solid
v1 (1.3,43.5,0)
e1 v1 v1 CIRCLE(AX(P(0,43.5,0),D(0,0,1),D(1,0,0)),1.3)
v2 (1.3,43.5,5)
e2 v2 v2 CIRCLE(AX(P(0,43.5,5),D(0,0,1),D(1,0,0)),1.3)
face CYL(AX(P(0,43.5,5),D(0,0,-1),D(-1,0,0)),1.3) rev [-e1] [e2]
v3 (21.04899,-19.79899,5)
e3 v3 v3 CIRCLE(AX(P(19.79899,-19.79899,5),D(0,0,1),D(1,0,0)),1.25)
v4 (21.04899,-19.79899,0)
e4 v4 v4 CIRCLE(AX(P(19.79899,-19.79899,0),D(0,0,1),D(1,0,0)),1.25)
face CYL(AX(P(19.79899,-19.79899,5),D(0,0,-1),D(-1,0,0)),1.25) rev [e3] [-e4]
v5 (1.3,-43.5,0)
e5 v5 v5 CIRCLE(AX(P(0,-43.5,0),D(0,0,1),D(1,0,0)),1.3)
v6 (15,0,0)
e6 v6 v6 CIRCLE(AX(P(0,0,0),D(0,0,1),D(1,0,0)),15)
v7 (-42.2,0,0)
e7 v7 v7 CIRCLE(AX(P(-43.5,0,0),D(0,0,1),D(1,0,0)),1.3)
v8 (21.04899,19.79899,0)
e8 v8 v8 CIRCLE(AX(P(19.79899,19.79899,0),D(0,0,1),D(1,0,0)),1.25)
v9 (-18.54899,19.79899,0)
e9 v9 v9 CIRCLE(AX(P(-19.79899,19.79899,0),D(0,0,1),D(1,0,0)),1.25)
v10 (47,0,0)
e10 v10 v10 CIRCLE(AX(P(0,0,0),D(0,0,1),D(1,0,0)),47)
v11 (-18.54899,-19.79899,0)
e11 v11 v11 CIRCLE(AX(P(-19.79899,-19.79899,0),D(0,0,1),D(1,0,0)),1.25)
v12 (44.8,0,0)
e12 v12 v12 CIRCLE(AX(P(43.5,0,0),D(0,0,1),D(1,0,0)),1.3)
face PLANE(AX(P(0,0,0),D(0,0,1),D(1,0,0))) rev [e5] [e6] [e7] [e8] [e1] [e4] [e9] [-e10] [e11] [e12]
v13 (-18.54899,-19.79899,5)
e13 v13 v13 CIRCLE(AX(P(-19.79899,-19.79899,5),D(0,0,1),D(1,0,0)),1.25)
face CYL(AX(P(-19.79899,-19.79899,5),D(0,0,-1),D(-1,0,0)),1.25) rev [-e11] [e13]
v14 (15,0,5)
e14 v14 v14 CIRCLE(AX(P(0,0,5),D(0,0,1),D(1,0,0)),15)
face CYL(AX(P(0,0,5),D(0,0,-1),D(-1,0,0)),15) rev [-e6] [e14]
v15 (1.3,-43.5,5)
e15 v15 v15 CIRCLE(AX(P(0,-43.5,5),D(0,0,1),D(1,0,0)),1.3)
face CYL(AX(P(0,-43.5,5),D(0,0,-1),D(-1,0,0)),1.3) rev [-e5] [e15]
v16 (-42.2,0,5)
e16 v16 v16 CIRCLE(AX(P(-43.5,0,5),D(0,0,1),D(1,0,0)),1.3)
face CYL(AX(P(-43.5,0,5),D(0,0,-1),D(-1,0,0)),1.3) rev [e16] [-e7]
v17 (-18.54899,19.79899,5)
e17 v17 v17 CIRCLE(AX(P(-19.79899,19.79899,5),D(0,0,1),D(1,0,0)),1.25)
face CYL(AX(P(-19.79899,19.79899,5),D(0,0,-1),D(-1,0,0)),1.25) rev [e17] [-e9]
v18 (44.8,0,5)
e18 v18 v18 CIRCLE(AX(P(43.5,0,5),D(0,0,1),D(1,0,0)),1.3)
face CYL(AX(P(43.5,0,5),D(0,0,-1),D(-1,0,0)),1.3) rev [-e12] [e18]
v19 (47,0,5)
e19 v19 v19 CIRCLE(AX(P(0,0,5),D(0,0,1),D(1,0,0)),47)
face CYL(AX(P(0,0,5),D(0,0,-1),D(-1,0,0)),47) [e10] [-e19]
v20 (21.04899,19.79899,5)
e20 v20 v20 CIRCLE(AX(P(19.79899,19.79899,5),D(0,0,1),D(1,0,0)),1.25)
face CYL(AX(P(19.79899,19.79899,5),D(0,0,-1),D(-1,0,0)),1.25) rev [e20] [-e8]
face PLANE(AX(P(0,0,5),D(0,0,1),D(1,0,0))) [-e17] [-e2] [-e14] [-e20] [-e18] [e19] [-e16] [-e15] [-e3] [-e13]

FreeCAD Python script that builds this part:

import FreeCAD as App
import Part
import Sketcher
from FreeCAD import Vector
Q = App.Units.Quantity

doc = App.newDocument("Part")
body = doc.addObject("PartDesign::Body", "Body")

sketch1 = body.newObject("Sketcher::SketchObject", "Sketch")
sketch1.AttachmentSupport = (doc.getObject("XY_Plane"), [""])
sketch1.MapMode = "FlatFace"
sketch1.addGeometry([
    Part.Circle(Vector(0, 0, 0), Vector(0, 0, 1), 47),
    Part.Circle(Vector(-19.8, -19.8, 0), Vector(0, 0, 1), 1.2),
    Part.Circle(Vector(0, -43.5, 0), Vector(0, 0, 1), 1.3),
    Part.Circle(Vector(19.8, -19.8, 0), Vector(0, 0, 1), 1.2),
    Part.Circle(Vector(-43.5, 0, 0), Vector(0, 0, 1), 1.3),
    Part.Circle(Vector(-19.8, 19.8, 0), Vector(0, 0, 1), 1.2),
    Part.Circle(Vector(0, 0, 0), Vector(0, 0, 1), 15),
    Part.Circle(Vector(19.8, 19.8, 0), Vector(0, 0, 1), 1.2),
    Part.Circle(Vector(43.5, 0, 0), Vector(0, 0, 1), 1.3),
    Part.Circle(Vector(0, 43.5, 0), Vector(0, 0, 1), 1.3),
], False)
sketch1.addConstraint([
    Sketcher.Constraint("Coincident", 0, 3, -1, 1),
    Sketcher.Constraint("Coincident", 6, 3, -1, 1),
    Sketcher.Constraint("Equal", 1, 3),
    Sketcher.Constraint("Equal", 2, 4),
    Sketcher.Constraint("Equal", 3, 5),
    Sketcher.Constraint("Equal", 5, 7),
    Sketcher.Constraint("Equal", 4, 8),
    Sketcher.Constraint("Equal", 8, 9),
    Sketcher.Constraint("Symmetric", 3, 3, 5, 3, -1, 1),
    Sketcher.Constraint("Symmetric", 1, 3, 7, 3, -1, 1),
    Sketcher.Constraint("Symmetric", 4, 3, 8, 3, -1, 1),
    Sketcher.Constraint("Symmetric", 2, 3, 9, 3, -1, 1),
    Sketcher.Constraint("Symmetric", 1, 3, 3, 3, -2),
    Sketcher.Constraint("PointOnObject", 2, 3, -2),
    Sketcher.Constraint("PointOnObject", 4, 3, -1),
    Sketcher.Constraint("Diameter", 0, Q("94 mm")),
    Sketcher.Constraint("Diameter", 6, Q("30 mm")),
    Sketcher.Constraint("Diameter", 1, Q("2.5 mm")),
    Sketcher.Constraint("Diameter", 2, Q("2.6 mm")),
    Sketcher.Constraint("DistanceY", 2, 3, -1, 1, Q("43.5 mm")),
    Sketcher.Constraint("DistanceX", 4, 3, -1, 1, Q("43.5 mm")),
    Sketcher.Constraint("DistanceX", 1, 3, -1, 1, Q("19.79899 mm")),
    Sketcher.Constraint("DistanceY", 1, 3, -1, 1, Q("19.79899 mm")),
])
pad1 = body.newObject("PartDesign::Pad", "Pad")
pad1.Profile = sketch1
pad1.Length = 5

doc.recompute()
